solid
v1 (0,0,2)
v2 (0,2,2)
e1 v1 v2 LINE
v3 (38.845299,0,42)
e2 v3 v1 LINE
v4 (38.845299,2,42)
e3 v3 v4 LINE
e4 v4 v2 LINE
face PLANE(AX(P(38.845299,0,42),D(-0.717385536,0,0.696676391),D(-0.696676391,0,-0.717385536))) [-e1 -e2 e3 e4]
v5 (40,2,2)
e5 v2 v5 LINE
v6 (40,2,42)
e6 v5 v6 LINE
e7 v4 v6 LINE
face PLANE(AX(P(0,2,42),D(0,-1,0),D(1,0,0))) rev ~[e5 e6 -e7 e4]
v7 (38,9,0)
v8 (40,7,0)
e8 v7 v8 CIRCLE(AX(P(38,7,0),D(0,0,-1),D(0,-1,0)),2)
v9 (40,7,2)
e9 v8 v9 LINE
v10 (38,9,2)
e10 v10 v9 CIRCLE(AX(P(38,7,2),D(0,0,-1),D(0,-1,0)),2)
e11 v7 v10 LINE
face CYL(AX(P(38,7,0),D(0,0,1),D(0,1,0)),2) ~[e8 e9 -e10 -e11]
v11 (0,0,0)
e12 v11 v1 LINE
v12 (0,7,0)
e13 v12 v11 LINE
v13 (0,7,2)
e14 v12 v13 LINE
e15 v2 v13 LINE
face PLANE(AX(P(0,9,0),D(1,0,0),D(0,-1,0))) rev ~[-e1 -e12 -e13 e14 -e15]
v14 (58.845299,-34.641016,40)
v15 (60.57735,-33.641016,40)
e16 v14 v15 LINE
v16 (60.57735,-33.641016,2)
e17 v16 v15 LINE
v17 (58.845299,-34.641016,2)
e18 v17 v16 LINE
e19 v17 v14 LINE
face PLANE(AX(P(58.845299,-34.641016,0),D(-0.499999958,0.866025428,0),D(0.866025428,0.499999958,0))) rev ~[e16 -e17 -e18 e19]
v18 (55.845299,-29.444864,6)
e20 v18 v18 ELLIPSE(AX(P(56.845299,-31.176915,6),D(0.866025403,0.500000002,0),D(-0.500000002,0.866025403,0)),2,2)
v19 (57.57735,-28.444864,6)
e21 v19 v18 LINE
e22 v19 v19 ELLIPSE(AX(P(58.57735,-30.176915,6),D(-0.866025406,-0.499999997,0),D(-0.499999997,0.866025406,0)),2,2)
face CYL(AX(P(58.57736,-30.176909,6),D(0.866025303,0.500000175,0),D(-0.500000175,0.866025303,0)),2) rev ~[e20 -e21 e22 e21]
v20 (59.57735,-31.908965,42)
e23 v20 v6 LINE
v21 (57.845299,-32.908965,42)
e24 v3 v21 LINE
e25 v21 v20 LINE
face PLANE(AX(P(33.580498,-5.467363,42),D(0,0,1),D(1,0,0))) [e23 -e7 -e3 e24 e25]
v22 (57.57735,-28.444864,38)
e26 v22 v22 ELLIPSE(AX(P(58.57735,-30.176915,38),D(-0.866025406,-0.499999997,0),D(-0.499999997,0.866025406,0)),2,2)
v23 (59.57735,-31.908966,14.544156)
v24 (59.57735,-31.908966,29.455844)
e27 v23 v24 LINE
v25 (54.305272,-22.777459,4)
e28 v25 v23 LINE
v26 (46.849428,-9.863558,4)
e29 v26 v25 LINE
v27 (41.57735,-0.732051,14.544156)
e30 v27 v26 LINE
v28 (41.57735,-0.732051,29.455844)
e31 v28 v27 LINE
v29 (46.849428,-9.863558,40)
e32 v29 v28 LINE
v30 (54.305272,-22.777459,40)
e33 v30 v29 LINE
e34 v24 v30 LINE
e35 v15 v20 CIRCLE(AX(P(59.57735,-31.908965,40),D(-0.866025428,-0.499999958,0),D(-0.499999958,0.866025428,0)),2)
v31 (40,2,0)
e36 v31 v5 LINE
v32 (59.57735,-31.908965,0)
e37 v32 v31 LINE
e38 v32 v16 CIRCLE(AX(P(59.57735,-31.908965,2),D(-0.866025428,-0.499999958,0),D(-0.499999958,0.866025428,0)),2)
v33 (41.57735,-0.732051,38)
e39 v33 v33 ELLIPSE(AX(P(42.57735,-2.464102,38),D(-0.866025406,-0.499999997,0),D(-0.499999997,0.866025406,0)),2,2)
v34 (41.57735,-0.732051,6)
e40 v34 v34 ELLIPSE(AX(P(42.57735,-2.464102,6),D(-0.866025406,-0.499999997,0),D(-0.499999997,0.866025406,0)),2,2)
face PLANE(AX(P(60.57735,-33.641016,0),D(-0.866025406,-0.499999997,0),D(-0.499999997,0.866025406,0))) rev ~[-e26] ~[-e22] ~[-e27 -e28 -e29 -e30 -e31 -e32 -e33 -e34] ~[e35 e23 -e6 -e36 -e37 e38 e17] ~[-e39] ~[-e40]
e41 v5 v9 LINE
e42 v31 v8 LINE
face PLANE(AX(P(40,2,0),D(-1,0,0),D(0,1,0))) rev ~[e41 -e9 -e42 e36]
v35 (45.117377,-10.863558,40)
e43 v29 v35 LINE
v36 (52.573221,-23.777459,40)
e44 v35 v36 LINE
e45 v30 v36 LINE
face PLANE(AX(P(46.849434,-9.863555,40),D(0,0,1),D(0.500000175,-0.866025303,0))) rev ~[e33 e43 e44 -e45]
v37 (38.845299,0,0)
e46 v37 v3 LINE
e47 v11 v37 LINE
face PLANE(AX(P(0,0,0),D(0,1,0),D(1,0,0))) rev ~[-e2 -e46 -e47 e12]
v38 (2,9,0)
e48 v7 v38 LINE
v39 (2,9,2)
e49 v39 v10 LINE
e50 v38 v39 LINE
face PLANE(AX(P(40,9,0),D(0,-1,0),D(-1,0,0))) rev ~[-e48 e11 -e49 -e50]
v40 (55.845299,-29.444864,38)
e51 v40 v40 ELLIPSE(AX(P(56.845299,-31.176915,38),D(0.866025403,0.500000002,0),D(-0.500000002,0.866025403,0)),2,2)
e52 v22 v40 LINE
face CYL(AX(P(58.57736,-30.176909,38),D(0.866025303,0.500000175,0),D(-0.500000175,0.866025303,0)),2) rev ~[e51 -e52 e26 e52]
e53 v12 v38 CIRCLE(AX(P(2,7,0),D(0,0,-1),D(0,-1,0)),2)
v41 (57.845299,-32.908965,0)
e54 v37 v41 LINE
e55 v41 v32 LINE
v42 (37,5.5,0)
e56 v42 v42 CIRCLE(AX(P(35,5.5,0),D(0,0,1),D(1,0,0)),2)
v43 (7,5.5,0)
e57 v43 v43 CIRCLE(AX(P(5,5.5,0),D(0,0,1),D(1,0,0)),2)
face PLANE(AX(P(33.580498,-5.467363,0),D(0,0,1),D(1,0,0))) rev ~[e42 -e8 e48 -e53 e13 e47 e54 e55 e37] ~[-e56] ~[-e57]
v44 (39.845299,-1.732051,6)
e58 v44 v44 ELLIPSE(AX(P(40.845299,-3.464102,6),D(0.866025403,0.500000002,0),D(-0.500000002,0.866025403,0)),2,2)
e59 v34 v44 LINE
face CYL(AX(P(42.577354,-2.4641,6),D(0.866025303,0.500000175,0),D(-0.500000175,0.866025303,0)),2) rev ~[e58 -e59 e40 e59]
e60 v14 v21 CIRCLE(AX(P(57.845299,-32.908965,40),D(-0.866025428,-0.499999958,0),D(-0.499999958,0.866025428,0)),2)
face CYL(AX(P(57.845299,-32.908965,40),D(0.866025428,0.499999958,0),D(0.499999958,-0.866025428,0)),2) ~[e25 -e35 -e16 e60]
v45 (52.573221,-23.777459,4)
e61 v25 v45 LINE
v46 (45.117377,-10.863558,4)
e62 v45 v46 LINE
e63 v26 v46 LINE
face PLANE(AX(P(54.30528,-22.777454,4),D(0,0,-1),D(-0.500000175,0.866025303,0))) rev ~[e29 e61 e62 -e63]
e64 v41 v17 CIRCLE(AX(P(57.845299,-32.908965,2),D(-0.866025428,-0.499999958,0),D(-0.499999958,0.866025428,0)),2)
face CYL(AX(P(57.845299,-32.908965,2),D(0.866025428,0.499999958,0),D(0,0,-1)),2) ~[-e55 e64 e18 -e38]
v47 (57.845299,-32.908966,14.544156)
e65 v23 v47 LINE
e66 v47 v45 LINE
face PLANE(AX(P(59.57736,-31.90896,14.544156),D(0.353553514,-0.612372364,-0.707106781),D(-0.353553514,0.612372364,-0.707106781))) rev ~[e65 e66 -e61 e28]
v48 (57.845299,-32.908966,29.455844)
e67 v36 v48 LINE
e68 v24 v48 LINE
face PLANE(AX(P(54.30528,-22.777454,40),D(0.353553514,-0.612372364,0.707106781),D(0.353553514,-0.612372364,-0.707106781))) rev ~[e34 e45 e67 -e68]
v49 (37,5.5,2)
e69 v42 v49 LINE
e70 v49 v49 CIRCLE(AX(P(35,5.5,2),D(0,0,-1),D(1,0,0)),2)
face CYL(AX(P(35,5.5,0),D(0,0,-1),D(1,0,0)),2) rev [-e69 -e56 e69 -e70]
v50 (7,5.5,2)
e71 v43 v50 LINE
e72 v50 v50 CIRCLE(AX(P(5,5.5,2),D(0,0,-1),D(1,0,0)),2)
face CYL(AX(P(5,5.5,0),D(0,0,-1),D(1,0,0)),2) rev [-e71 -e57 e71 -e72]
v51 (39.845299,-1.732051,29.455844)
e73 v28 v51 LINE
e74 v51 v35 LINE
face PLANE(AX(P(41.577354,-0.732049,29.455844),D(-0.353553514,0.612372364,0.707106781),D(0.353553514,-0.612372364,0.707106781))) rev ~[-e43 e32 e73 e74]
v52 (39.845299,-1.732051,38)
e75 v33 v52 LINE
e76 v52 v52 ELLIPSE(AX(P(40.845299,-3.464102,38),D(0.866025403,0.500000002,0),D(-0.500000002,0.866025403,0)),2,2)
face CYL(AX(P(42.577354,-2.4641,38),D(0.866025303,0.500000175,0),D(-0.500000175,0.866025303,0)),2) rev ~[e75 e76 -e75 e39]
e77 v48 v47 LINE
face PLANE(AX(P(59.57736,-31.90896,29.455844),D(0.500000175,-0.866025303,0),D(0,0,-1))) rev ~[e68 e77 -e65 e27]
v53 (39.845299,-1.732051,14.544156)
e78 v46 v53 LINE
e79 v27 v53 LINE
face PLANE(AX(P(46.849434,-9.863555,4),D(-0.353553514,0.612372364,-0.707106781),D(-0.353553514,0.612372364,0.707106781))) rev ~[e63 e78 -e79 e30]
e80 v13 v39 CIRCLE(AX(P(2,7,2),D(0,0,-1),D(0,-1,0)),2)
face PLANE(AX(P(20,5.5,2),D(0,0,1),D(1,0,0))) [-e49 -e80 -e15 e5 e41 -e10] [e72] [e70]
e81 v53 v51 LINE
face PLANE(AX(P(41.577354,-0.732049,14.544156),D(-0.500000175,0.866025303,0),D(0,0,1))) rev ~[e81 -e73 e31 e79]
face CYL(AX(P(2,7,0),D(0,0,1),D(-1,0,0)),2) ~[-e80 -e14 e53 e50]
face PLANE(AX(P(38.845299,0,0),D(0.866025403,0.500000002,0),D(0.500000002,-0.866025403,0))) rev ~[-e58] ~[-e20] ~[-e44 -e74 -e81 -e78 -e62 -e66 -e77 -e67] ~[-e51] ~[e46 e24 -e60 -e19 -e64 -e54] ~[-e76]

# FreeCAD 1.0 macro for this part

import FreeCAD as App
import Part
import Sketcher
from FreeCAD import Vector
Q = App.Units.Quantity


def edges_at(feature, points):
    """Names of the edges that pass closest to the given points."""
    edges = feature.Shape.Edges
    near = lambda p: min(range(len(edges)), key=lambda i: edges[i].distToShape(Part.Vertex(*p))[0])
    return sorted({f"Edge{near(p) + 1}" for p in points})


def add_polygon(sketch, points):
    """Adds a closed chain of lines whose ends are joined by coincident constraints."""
    first, n = sketch.GeometryCount, len(points)
    for a, b in zip(points, points[1:] + points[:1]):
        sketch.addGeometry(Part.LineSegment(App.Vector(*a, 0), App.Vector(*b, 0)), False)
    for i in range(n):
        sketch.addConstraint(Sketcher.Constraint("Coincident", first + i, 2, first + (i + 1) % n, 1))

doc = App.newDocument("Part")
params = doc.addObject("Spreadsheet::Sheet", "Params")
for row, (alias, value) in enumerate([
    ("sketch1_diameter", "4 mm"),
    ("sketch1_width", "40 mm"),
    ("sketch1_height", "7 mm"),
    ("sketch1_height2", "9 mm"),
    ("sketch1_length", "40 mm"),
    ("pad1_length", "42 mm"),
    ("sketch2_width", "40 mm"),
    ("sketch2_height", "7 mm"),
    ("pocket1_length", "40 mm"),
    ("sketch3_height", "40 mm"),
    ("pocket2_length", "5 mm"),
    ("sketch4_diameter", "4 mm"),
    ("pocket3_length", "5 mm"),
    ("fillet_radius", "2 mm"),
], start=1):
    params.set(f"A{row}", alias)
    params.set(f"B{row}", "=" + value)
    params.setAlias(f"B{row}", alias)

body = doc.addObject("PartDesign::Body", "Body")

sketch1 = body.newObject("Sketcher::SketchObject", "Sketch")
sketch1.AttachmentSupport = (doc.getObject("XY_Plane"), [""])
sketch1.MapMode = "FlatFace"
add_polygon(sketch1, [(0, 0), (38.8, 0), (58.8, -34.6), (60.6, -33.6), (40, 2), (40, 9), (0, 9)])
sketch1.addGeometry(Part.Circle(Vector(5, 5.5, 0), Vector(0, 0, 1), 2), False)
sketch1.addGeometry(Part.Circle(Vector(35, 5.5, 0), Vector(0, 0, 1), 2), False)
sketch1.addConstraint(Sketcher.Constraint("Horizontal", 0))
sketch1.addConstraint(Sketcher.Constraint("Vertical", 4))
sketch1.addConstraint(Sketcher.Constraint("Horizontal", 5))
sketch1.addConstraint(Sketcher.Constraint("Vertical", 6))
sketch1.addConstraint(Sketcher.Constraint("Coincident", 6, 2, -1, 1))
sketch1.addConstraint(Sketcher.Constraint("Equal", 7, 8))
sketch1.addConstraint(Sketcher.Constraint("Perpendicular", 1, 2))
sketch1.addConstraint(Sketcher.Constraint("Perpendicular", 2, 3))
sketch1.addConstraint(Sketcher.Constraint("Horizontal", 7, 3, 8, 3))
sketch1.addConstraint(Sketcher.Constraint("Diameter", 7, 4.0))
sketch1.addConstraint(Sketcher.Constraint("DistanceX", 5, 2, 5, 1, 40.0))
sketch1.addConstraint(Sketcher.Constraint("DistanceY", 4, 1, 4, 2, 7.0))
sketch1.addConstraint(Sketcher.Constraint("DistanceY", 6, 2, 6, 1, 9.0))
sketch1.addConstraint(Sketcher.Constraint("Angle", 1, Q("-60 deg")))
sketch1.addConstraint(Sketcher.Constraint("Distance", 1, 40.0))
sketch1.addConstraint(Sketcher.Constraint("Distance", 2, 2.0))
sketch1.addConstraint(Sketcher.Constraint("DistanceX", -1, 1, 7, 3, 5.0))
sketch1.addConstraint(Sketcher.Constraint("DistanceX", -1, 1, 8, 3, 35.0))
sketch1.addConstraint(Sketcher.Constraint("DistanceY", -1, 1, 7, 3, 5.5))
sketch1.setExpression("Constraints[16]", "Params.sketch1_diameter")
sketch1.setExpression("Constraints[17]", "Params.sketch1_width")
sketch1.setExpression("Constraints[18]", "Params.sketch1_height")
sketch1.setExpression("Constraints[19]", "Params.sketch1_height2")
sketch1.setExpression("Constraints[21]", "Params.sketch1_length")
pad1 = body.newObject("PartDesign::Pad", "Pad")
pad1.Profile = sketch1
pad1.setExpression("Length", "Params.pad1_length")

sketch2 = body.newObject("Sketcher::SketchObject", "Sketch001")
sketch2.AttachmentSupport = (doc.getObject("XY_Plane"), [""])
sketch2.MapMode = "FlatFace"
sketch2.AttachmentOffset = App.Placement(Vector(0, 0, 42), App.Rotation())
add_polygon(sketch2, [(0, 9), (0, 2), (40, 2), (40, 9)])
sketch2.addConstraint(Sketcher.Constraint("Vertical", 0))
sketch2.addConstraint(Sketcher.Constraint("Horizontal", 1))
sketch2.addConstraint(Sketcher.Constraint("Vertical", 2))
sketch2.addConstraint(Sketcher.Constraint("Horizontal", 3))
sketch2.addConstraint(Sketcher.Constraint("PointOnObject", 0, 2, -2))
sketch2.addConstraint(Sketcher.Constraint("DistanceX", 1, 1, 1, 2, 40.0))
sketch2.addConstraint(Sketcher.Constraint("DistanceY", 0, 2, 0, 1, 7.0))
sketch2.addConstraint(Sketcher.Constraint("DistanceY", -1, 1, 0, 2, 2.0))
sketch2.setExpression("Constraints[9]", "Params.sketch2_width")
sketch2.setExpression("Constraints[10]", "Params.sketch2_height")
pocket1 = body.newObject("PartDesign::Pocket", "Pocket")
pocket1.Profile = sketch2
pocket1.setExpression("Length", "Params.pocket1_length")

sketch3 = body.newObject("Sketcher::SketchObject", "Sketch002")
sketch3.AttachmentSupport = (doc.getObject("XZ_Plane"), [""])
sketch3.MapMode = "FlatFace"
add_polygon(sketch3, [(0, 42), (0, 2), (39, 42)])
sketch3.addConstraint(Sketcher.Constraint("Vertical", 0))
sketch3.addConstraint(Sketcher.Constraint("Horizontal", 2))
sketch3.addConstraint(Sketcher.Constraint("PointOnObject", 0, 2, -2))
sketch3.addConstraint(Sketcher.Constraint("DistanceY", 0, 2, 0, 1, 40.0))
sketch3.addConstraint(Sketcher.Constraint("DistanceY", -1, 1, 0, 2, 2.0))
sketch3.addConstraint(Sketcher.Constraint("DistanceX", 2, 2, 2, 1, 38.845299))
sketch3.setExpression("Constraints[6]", "Params.sketch3_height")
pocket2 = body.newObject("PartDesign::Pocket", "Pocket001")
pocket2.Profile = sketch3
pocket2.setExpression("Length", "Params.pocket2_length")

sketch4 = body.newObject("Sketcher::SketchObject", "Sketch003")
sketch4.Placement = App.Placement(Vector(30.866025, 17.820508, 0), App.Rotation(Vector(-0.500000175, 0.866025303, 0), Vector(0, 0, 1), Vector(0.866025303, 0.500000175, 0), "ZXY"))
sketch4.addGeometry(Part.Circle(Vector(-55.4, 38, 0), Vector(0, 0, 1), 2), False)
sketch4.addGeometry(Part.Circle(Vector(-23.4, 38, 0), Vector(0, 0, 1), 2), False)
sketch4.addGeometry(Part.Circle(Vector(-23.4, 6, 0), Vector(0, 0, 1), 2), False)
sketch4.addGeometry(Part.Circle(Vector(-55.4, 6, 0), Vector(0, 0, 1), 2), False)
add_polygon(sketch4, [(-21.4, 29.5), (-32, 40), (-46.9, 40), (-57.4, 29.5), (-57.4, 14.5), (-46.9, 4), (-32, 4), (-21.4, 14.5)])
sketch4.addConstraint(Sketcher.Constraint("Horizontal", 5))
sketch4.addConstraint(Sketcher.Constraint("Vertical", 7))
sketch4.addConstraint(Sketcher.Constraint("Horizontal", 9))
sketch4.addConstraint(Sketcher.Constraint("Vertical", 11))
sketch4.addConstraint(Sketcher.Constraint("Equal", 0, 1))
sketch4.addConstraint(Sketcher.Constraint("Equal", 1, 2))
sketch4.addConstraint(Sketcher.Constraint("Equal", 2, 3))
sketch4.addConstraint(Sketcher.Constraint("Perpendicular", 4, 6))
sketch4.addConstraint(Sketcher.Constraint("Perpendicular", 6, 8))
sketch4.addConstraint(Sketcher.Constraint("Perpendicular", 8, 10))
sketch4.addConstraint(Sketcher.Constraint("Horizontal", 0, 3, 1, 3))
sketch4.addConstraint(Sketcher.Constraint("Horizontal", 2, 3, 3, 3))
sketch4.addConstraint(Sketcher.Constraint("Horizontal", 7, 2, 10, 2))
sketch4.addConstraint(Sketcher.Constraint("Horizontal", 6, 2, 11, 2))
sketch4.addConstraint(Sketcher.Constraint("Vertical", 1, 3, 2, 3))
sketch4.addConstraint(Sketcher.Constraint("Vertical", 0, 3, 3, 3))
sketch4.addConstraint(Sketcher.Constraint("Vertical", 5, 2, 8, 2))
sketch4.addConstraint(Sketcher.Constraint("Vertical", 4, 2, 9, 2))
sketch4.addConstraint(Sketcher.Constraint("Equal", 9, 7))
sketch4.addConstraint(Sketcher.Constraint("Diameter", 0, 4.0))
sketch4.addConstraint(Sketcher.Constraint("DistanceY", -1, 1, 0, 3, 38.0))
sketch4.addConstraint(Sketcher.Constraint("DistanceY", -1, 1, 2, 3, 6.0))
sketch4.addConstraint(Sketcher.Constraint("DistanceY", -1, 1, 4, 2, 40.0))
sketch4.addConstraint(Sketcher.Constraint("DistanceY", -1, 1, 8, 2, 4.0))
sketch4.addConstraint(Sketcher.Constraint("DistanceX", 0, 3, 1, 3, 32.0))
sketch4.addConstraint(Sketcher.Constraint("DistanceX", 6, 2, 0, 3, 2.0))
sketch4.addConstraint(Sketcher.Constraint("DistanceX", 5, 2, 5, 1, 14.911688))
sketch4.addConstraint(Sketcher.Constraint("DistanceX", 0, 3, -1, 1, 55.42265))
sketch4.setExpression("Constraints[27]", "Params.sketch4_diameter")
pocket3 = body.newObject("PartDesign::Pocket", "Pocket002")
pocket3.Profile = sketch4
pocket3.setExpression("Length", "Params.pocket3_length")
doc.recompute()

fillet = body.newObject("PartDesign::Fillet", "Fillet")
fillet.Base = (pocket3, edges_at(pocket3, [
    (59.711, -34.141, 42),
    (59.711, -34.141, 0),
    (40, 9, 1),
    (0, 9, 1),
]))
fillet.setExpression("Radius", "Params.fillet_radius")

doc.recompute()
